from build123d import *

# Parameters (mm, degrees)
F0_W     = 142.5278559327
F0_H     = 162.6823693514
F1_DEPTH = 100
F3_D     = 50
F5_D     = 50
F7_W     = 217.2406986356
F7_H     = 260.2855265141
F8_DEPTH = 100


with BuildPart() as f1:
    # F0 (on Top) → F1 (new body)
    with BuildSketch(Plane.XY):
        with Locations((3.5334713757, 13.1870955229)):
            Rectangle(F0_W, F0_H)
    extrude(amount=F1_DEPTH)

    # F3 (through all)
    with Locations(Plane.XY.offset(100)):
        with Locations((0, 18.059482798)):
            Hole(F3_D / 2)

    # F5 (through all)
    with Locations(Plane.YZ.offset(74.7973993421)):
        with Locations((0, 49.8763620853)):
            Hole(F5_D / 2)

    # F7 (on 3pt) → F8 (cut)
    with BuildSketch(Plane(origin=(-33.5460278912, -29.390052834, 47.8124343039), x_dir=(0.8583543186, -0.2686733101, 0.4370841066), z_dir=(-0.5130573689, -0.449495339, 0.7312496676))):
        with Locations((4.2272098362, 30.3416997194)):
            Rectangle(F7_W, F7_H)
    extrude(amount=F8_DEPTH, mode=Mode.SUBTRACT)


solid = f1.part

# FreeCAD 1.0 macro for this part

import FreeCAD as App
import Part
import Sketcher

V = App.Vector
Q = App.Units.Quantity


def add_polygon(sketch, points):
    """Adds a closed chain of lines whose ends are joined by coincident constraints."""
    first, n = sketch.GeometryCount, len(points)
    for a, b in zip(points, points[1:] + points[:1]):
        sketch.addGeometry(Part.LineSegment(App.Vector(*a, 0), App.Vector(*b, 0)), False)
    for i in range(n):
        sketch.addConstraint(Sketcher.Constraint("Coincident", first + i, 2, first + (i + 1) % n, 1))

doc = App.newDocument("Part")
body = doc.addObject("PartDesign::Body", "Body")

# Sketch on XY plane
sketch1 = body.newObject("Sketcher::SketchObject", "Sketch")
sketch1.AttachmentSupport = (doc.getObject("XY_Plane"), [""])
sketch1.MapMode = "FlatFace"
add_polygon(sketch1, [(-68, 95), (-68, -68), (75, -68), (75, 95)])  # lines 0-3
sketch1.addConstraint([
    Sketcher.Constraint("Vertical", 0),
    Sketcher.Constraint("Horizontal", 1),
    Sketcher.Constraint("Vertical", 2),
    Sketcher.Constraint("Horizontal", 3),
    Sketcher.Constraint("DistanceY", 0, 2, 0, 1, Q("162.682369 mm")),
    Sketcher.Constraint("DistanceX", -1, 1, 1, 2, Q("74.797399 mm")),
    Sketcher.Constraint("DistanceX", 1, 1, 1, 2, Q("142.527856 mm")),
    Sketcher.Constraint("DistanceY", 0, 2, -1, 1, Q("68.154089 mm")),
])
pad1 = body.newObject("PartDesign::Pad", "Pad")
pad1.Profile = sketch1
pad1.Length = 100

# Sketch on XY plane
sketch2 = body.newObject("Sketcher::SketchObject", "Sketch001")
sketch2.AttachmentSupport = (doc.getObject("XY_Plane"), [""])
sketch2.MapMode = "FlatFace"
sketch2.AttachmentOffset = App.Placement(V(0, 0, 100), App.Rotation())
sketch2.addGeometry(Part.Circle(V(0, 18, 0), V(0, 0, 1), 25), False)
sketch2.addConstraint([
    Sketcher.Constraint("PointOnObject", 0, 3, -2),
    Sketcher.Constraint("Diameter", 0, Q("50 mm")),
    Sketcher.Constraint("DistanceY", -1, 1, 0, 3, Q("18.059483 mm")),
])
doc.recompute()
hole = body.newObject("PartDesign::Hole", "Hole")
hole.Profile = sketch2
hole.ThreadType = "None"
hole.Diameter = 50
hole.DepthType = "ThroughAll"

# Sketch on YZ plane
sketch3 = body.newObject("Sketcher::SketchObject", "Sketch002")
sketch3.AttachmentSupport = (doc.getObject("YZ_Plane"), [""])
sketch3.MapMode = "FlatFace"
sketch3.AttachmentOffset = App.Placement(V(0, 0, 74.797399), App.Rotation())
sketch3.addGeometry(Part.Circle(V(0, 50, 0), V(0, 0, 1), 25), False)
sketch3.addConstraint([
    Sketcher.Constraint("PointOnObject", 0, 3, -2),
    Sketcher.Constraint("Diameter", 0, Q("50 mm")),
    Sketcher.Constraint("DistanceY", -1, 1, 0, 3, Q("49.876362 mm")),
])
doc.recompute()
hole2 = body.newObject("PartDesign::Hole", "Hole001")
hole2.Profile = sketch3
hole2.ThreadType = "None"
hole2.Diameter = 50
hole2.DepthType = "ThroughAll"

# Sketch on an angled plane
sketch4 = body.newObject("Sketcher::SketchObject", "Sketch003")
sketch4.Placement = App.Placement(V(-33.546028, -29.390053, 47.812434), App.Rotation(V(0.858354319, -0.26867331, 0.437084107), V(0, 0.851920533, 0.523671087), V(-0.513057369, -0.449495339, 0.731249668), "ZXY"))
add_polygon(sketch4, [(-104, 160), (-104, -100), (113, -100), (113, 160)])  # lines 0-3
sketch4.addConstraint([
    Sketcher.Constraint("Vertical", 0),
    Sketcher.Constraint("Horizontal", 1),
    Sketcher.Constraint("Vertical", 2),
    Sketcher.Constraint("Horizontal", 3),
    Sketcher.Constraint("DistanceX", 1, 1, 1, 2, Q("217.240699 mm")),
    Sketcher.Constraint("DistanceY", 0, 2, 0, 1, Q("260.285527 mm")),
    Sketcher.Constraint("DistanceX", 0, 2, -1, 1, Q("104.39314 mm")),
    Sketcher.Constraint("DistanceY", 0, 2, -1, 1, Q("99.801064 mm")),
])
pocket1 = body.newObject("PartDesign::Pocket", "Pocket")
pocket1.Profile = sketch4
pocket1.Length = 100
pocket1.Reversed = True

doc.recompute()
